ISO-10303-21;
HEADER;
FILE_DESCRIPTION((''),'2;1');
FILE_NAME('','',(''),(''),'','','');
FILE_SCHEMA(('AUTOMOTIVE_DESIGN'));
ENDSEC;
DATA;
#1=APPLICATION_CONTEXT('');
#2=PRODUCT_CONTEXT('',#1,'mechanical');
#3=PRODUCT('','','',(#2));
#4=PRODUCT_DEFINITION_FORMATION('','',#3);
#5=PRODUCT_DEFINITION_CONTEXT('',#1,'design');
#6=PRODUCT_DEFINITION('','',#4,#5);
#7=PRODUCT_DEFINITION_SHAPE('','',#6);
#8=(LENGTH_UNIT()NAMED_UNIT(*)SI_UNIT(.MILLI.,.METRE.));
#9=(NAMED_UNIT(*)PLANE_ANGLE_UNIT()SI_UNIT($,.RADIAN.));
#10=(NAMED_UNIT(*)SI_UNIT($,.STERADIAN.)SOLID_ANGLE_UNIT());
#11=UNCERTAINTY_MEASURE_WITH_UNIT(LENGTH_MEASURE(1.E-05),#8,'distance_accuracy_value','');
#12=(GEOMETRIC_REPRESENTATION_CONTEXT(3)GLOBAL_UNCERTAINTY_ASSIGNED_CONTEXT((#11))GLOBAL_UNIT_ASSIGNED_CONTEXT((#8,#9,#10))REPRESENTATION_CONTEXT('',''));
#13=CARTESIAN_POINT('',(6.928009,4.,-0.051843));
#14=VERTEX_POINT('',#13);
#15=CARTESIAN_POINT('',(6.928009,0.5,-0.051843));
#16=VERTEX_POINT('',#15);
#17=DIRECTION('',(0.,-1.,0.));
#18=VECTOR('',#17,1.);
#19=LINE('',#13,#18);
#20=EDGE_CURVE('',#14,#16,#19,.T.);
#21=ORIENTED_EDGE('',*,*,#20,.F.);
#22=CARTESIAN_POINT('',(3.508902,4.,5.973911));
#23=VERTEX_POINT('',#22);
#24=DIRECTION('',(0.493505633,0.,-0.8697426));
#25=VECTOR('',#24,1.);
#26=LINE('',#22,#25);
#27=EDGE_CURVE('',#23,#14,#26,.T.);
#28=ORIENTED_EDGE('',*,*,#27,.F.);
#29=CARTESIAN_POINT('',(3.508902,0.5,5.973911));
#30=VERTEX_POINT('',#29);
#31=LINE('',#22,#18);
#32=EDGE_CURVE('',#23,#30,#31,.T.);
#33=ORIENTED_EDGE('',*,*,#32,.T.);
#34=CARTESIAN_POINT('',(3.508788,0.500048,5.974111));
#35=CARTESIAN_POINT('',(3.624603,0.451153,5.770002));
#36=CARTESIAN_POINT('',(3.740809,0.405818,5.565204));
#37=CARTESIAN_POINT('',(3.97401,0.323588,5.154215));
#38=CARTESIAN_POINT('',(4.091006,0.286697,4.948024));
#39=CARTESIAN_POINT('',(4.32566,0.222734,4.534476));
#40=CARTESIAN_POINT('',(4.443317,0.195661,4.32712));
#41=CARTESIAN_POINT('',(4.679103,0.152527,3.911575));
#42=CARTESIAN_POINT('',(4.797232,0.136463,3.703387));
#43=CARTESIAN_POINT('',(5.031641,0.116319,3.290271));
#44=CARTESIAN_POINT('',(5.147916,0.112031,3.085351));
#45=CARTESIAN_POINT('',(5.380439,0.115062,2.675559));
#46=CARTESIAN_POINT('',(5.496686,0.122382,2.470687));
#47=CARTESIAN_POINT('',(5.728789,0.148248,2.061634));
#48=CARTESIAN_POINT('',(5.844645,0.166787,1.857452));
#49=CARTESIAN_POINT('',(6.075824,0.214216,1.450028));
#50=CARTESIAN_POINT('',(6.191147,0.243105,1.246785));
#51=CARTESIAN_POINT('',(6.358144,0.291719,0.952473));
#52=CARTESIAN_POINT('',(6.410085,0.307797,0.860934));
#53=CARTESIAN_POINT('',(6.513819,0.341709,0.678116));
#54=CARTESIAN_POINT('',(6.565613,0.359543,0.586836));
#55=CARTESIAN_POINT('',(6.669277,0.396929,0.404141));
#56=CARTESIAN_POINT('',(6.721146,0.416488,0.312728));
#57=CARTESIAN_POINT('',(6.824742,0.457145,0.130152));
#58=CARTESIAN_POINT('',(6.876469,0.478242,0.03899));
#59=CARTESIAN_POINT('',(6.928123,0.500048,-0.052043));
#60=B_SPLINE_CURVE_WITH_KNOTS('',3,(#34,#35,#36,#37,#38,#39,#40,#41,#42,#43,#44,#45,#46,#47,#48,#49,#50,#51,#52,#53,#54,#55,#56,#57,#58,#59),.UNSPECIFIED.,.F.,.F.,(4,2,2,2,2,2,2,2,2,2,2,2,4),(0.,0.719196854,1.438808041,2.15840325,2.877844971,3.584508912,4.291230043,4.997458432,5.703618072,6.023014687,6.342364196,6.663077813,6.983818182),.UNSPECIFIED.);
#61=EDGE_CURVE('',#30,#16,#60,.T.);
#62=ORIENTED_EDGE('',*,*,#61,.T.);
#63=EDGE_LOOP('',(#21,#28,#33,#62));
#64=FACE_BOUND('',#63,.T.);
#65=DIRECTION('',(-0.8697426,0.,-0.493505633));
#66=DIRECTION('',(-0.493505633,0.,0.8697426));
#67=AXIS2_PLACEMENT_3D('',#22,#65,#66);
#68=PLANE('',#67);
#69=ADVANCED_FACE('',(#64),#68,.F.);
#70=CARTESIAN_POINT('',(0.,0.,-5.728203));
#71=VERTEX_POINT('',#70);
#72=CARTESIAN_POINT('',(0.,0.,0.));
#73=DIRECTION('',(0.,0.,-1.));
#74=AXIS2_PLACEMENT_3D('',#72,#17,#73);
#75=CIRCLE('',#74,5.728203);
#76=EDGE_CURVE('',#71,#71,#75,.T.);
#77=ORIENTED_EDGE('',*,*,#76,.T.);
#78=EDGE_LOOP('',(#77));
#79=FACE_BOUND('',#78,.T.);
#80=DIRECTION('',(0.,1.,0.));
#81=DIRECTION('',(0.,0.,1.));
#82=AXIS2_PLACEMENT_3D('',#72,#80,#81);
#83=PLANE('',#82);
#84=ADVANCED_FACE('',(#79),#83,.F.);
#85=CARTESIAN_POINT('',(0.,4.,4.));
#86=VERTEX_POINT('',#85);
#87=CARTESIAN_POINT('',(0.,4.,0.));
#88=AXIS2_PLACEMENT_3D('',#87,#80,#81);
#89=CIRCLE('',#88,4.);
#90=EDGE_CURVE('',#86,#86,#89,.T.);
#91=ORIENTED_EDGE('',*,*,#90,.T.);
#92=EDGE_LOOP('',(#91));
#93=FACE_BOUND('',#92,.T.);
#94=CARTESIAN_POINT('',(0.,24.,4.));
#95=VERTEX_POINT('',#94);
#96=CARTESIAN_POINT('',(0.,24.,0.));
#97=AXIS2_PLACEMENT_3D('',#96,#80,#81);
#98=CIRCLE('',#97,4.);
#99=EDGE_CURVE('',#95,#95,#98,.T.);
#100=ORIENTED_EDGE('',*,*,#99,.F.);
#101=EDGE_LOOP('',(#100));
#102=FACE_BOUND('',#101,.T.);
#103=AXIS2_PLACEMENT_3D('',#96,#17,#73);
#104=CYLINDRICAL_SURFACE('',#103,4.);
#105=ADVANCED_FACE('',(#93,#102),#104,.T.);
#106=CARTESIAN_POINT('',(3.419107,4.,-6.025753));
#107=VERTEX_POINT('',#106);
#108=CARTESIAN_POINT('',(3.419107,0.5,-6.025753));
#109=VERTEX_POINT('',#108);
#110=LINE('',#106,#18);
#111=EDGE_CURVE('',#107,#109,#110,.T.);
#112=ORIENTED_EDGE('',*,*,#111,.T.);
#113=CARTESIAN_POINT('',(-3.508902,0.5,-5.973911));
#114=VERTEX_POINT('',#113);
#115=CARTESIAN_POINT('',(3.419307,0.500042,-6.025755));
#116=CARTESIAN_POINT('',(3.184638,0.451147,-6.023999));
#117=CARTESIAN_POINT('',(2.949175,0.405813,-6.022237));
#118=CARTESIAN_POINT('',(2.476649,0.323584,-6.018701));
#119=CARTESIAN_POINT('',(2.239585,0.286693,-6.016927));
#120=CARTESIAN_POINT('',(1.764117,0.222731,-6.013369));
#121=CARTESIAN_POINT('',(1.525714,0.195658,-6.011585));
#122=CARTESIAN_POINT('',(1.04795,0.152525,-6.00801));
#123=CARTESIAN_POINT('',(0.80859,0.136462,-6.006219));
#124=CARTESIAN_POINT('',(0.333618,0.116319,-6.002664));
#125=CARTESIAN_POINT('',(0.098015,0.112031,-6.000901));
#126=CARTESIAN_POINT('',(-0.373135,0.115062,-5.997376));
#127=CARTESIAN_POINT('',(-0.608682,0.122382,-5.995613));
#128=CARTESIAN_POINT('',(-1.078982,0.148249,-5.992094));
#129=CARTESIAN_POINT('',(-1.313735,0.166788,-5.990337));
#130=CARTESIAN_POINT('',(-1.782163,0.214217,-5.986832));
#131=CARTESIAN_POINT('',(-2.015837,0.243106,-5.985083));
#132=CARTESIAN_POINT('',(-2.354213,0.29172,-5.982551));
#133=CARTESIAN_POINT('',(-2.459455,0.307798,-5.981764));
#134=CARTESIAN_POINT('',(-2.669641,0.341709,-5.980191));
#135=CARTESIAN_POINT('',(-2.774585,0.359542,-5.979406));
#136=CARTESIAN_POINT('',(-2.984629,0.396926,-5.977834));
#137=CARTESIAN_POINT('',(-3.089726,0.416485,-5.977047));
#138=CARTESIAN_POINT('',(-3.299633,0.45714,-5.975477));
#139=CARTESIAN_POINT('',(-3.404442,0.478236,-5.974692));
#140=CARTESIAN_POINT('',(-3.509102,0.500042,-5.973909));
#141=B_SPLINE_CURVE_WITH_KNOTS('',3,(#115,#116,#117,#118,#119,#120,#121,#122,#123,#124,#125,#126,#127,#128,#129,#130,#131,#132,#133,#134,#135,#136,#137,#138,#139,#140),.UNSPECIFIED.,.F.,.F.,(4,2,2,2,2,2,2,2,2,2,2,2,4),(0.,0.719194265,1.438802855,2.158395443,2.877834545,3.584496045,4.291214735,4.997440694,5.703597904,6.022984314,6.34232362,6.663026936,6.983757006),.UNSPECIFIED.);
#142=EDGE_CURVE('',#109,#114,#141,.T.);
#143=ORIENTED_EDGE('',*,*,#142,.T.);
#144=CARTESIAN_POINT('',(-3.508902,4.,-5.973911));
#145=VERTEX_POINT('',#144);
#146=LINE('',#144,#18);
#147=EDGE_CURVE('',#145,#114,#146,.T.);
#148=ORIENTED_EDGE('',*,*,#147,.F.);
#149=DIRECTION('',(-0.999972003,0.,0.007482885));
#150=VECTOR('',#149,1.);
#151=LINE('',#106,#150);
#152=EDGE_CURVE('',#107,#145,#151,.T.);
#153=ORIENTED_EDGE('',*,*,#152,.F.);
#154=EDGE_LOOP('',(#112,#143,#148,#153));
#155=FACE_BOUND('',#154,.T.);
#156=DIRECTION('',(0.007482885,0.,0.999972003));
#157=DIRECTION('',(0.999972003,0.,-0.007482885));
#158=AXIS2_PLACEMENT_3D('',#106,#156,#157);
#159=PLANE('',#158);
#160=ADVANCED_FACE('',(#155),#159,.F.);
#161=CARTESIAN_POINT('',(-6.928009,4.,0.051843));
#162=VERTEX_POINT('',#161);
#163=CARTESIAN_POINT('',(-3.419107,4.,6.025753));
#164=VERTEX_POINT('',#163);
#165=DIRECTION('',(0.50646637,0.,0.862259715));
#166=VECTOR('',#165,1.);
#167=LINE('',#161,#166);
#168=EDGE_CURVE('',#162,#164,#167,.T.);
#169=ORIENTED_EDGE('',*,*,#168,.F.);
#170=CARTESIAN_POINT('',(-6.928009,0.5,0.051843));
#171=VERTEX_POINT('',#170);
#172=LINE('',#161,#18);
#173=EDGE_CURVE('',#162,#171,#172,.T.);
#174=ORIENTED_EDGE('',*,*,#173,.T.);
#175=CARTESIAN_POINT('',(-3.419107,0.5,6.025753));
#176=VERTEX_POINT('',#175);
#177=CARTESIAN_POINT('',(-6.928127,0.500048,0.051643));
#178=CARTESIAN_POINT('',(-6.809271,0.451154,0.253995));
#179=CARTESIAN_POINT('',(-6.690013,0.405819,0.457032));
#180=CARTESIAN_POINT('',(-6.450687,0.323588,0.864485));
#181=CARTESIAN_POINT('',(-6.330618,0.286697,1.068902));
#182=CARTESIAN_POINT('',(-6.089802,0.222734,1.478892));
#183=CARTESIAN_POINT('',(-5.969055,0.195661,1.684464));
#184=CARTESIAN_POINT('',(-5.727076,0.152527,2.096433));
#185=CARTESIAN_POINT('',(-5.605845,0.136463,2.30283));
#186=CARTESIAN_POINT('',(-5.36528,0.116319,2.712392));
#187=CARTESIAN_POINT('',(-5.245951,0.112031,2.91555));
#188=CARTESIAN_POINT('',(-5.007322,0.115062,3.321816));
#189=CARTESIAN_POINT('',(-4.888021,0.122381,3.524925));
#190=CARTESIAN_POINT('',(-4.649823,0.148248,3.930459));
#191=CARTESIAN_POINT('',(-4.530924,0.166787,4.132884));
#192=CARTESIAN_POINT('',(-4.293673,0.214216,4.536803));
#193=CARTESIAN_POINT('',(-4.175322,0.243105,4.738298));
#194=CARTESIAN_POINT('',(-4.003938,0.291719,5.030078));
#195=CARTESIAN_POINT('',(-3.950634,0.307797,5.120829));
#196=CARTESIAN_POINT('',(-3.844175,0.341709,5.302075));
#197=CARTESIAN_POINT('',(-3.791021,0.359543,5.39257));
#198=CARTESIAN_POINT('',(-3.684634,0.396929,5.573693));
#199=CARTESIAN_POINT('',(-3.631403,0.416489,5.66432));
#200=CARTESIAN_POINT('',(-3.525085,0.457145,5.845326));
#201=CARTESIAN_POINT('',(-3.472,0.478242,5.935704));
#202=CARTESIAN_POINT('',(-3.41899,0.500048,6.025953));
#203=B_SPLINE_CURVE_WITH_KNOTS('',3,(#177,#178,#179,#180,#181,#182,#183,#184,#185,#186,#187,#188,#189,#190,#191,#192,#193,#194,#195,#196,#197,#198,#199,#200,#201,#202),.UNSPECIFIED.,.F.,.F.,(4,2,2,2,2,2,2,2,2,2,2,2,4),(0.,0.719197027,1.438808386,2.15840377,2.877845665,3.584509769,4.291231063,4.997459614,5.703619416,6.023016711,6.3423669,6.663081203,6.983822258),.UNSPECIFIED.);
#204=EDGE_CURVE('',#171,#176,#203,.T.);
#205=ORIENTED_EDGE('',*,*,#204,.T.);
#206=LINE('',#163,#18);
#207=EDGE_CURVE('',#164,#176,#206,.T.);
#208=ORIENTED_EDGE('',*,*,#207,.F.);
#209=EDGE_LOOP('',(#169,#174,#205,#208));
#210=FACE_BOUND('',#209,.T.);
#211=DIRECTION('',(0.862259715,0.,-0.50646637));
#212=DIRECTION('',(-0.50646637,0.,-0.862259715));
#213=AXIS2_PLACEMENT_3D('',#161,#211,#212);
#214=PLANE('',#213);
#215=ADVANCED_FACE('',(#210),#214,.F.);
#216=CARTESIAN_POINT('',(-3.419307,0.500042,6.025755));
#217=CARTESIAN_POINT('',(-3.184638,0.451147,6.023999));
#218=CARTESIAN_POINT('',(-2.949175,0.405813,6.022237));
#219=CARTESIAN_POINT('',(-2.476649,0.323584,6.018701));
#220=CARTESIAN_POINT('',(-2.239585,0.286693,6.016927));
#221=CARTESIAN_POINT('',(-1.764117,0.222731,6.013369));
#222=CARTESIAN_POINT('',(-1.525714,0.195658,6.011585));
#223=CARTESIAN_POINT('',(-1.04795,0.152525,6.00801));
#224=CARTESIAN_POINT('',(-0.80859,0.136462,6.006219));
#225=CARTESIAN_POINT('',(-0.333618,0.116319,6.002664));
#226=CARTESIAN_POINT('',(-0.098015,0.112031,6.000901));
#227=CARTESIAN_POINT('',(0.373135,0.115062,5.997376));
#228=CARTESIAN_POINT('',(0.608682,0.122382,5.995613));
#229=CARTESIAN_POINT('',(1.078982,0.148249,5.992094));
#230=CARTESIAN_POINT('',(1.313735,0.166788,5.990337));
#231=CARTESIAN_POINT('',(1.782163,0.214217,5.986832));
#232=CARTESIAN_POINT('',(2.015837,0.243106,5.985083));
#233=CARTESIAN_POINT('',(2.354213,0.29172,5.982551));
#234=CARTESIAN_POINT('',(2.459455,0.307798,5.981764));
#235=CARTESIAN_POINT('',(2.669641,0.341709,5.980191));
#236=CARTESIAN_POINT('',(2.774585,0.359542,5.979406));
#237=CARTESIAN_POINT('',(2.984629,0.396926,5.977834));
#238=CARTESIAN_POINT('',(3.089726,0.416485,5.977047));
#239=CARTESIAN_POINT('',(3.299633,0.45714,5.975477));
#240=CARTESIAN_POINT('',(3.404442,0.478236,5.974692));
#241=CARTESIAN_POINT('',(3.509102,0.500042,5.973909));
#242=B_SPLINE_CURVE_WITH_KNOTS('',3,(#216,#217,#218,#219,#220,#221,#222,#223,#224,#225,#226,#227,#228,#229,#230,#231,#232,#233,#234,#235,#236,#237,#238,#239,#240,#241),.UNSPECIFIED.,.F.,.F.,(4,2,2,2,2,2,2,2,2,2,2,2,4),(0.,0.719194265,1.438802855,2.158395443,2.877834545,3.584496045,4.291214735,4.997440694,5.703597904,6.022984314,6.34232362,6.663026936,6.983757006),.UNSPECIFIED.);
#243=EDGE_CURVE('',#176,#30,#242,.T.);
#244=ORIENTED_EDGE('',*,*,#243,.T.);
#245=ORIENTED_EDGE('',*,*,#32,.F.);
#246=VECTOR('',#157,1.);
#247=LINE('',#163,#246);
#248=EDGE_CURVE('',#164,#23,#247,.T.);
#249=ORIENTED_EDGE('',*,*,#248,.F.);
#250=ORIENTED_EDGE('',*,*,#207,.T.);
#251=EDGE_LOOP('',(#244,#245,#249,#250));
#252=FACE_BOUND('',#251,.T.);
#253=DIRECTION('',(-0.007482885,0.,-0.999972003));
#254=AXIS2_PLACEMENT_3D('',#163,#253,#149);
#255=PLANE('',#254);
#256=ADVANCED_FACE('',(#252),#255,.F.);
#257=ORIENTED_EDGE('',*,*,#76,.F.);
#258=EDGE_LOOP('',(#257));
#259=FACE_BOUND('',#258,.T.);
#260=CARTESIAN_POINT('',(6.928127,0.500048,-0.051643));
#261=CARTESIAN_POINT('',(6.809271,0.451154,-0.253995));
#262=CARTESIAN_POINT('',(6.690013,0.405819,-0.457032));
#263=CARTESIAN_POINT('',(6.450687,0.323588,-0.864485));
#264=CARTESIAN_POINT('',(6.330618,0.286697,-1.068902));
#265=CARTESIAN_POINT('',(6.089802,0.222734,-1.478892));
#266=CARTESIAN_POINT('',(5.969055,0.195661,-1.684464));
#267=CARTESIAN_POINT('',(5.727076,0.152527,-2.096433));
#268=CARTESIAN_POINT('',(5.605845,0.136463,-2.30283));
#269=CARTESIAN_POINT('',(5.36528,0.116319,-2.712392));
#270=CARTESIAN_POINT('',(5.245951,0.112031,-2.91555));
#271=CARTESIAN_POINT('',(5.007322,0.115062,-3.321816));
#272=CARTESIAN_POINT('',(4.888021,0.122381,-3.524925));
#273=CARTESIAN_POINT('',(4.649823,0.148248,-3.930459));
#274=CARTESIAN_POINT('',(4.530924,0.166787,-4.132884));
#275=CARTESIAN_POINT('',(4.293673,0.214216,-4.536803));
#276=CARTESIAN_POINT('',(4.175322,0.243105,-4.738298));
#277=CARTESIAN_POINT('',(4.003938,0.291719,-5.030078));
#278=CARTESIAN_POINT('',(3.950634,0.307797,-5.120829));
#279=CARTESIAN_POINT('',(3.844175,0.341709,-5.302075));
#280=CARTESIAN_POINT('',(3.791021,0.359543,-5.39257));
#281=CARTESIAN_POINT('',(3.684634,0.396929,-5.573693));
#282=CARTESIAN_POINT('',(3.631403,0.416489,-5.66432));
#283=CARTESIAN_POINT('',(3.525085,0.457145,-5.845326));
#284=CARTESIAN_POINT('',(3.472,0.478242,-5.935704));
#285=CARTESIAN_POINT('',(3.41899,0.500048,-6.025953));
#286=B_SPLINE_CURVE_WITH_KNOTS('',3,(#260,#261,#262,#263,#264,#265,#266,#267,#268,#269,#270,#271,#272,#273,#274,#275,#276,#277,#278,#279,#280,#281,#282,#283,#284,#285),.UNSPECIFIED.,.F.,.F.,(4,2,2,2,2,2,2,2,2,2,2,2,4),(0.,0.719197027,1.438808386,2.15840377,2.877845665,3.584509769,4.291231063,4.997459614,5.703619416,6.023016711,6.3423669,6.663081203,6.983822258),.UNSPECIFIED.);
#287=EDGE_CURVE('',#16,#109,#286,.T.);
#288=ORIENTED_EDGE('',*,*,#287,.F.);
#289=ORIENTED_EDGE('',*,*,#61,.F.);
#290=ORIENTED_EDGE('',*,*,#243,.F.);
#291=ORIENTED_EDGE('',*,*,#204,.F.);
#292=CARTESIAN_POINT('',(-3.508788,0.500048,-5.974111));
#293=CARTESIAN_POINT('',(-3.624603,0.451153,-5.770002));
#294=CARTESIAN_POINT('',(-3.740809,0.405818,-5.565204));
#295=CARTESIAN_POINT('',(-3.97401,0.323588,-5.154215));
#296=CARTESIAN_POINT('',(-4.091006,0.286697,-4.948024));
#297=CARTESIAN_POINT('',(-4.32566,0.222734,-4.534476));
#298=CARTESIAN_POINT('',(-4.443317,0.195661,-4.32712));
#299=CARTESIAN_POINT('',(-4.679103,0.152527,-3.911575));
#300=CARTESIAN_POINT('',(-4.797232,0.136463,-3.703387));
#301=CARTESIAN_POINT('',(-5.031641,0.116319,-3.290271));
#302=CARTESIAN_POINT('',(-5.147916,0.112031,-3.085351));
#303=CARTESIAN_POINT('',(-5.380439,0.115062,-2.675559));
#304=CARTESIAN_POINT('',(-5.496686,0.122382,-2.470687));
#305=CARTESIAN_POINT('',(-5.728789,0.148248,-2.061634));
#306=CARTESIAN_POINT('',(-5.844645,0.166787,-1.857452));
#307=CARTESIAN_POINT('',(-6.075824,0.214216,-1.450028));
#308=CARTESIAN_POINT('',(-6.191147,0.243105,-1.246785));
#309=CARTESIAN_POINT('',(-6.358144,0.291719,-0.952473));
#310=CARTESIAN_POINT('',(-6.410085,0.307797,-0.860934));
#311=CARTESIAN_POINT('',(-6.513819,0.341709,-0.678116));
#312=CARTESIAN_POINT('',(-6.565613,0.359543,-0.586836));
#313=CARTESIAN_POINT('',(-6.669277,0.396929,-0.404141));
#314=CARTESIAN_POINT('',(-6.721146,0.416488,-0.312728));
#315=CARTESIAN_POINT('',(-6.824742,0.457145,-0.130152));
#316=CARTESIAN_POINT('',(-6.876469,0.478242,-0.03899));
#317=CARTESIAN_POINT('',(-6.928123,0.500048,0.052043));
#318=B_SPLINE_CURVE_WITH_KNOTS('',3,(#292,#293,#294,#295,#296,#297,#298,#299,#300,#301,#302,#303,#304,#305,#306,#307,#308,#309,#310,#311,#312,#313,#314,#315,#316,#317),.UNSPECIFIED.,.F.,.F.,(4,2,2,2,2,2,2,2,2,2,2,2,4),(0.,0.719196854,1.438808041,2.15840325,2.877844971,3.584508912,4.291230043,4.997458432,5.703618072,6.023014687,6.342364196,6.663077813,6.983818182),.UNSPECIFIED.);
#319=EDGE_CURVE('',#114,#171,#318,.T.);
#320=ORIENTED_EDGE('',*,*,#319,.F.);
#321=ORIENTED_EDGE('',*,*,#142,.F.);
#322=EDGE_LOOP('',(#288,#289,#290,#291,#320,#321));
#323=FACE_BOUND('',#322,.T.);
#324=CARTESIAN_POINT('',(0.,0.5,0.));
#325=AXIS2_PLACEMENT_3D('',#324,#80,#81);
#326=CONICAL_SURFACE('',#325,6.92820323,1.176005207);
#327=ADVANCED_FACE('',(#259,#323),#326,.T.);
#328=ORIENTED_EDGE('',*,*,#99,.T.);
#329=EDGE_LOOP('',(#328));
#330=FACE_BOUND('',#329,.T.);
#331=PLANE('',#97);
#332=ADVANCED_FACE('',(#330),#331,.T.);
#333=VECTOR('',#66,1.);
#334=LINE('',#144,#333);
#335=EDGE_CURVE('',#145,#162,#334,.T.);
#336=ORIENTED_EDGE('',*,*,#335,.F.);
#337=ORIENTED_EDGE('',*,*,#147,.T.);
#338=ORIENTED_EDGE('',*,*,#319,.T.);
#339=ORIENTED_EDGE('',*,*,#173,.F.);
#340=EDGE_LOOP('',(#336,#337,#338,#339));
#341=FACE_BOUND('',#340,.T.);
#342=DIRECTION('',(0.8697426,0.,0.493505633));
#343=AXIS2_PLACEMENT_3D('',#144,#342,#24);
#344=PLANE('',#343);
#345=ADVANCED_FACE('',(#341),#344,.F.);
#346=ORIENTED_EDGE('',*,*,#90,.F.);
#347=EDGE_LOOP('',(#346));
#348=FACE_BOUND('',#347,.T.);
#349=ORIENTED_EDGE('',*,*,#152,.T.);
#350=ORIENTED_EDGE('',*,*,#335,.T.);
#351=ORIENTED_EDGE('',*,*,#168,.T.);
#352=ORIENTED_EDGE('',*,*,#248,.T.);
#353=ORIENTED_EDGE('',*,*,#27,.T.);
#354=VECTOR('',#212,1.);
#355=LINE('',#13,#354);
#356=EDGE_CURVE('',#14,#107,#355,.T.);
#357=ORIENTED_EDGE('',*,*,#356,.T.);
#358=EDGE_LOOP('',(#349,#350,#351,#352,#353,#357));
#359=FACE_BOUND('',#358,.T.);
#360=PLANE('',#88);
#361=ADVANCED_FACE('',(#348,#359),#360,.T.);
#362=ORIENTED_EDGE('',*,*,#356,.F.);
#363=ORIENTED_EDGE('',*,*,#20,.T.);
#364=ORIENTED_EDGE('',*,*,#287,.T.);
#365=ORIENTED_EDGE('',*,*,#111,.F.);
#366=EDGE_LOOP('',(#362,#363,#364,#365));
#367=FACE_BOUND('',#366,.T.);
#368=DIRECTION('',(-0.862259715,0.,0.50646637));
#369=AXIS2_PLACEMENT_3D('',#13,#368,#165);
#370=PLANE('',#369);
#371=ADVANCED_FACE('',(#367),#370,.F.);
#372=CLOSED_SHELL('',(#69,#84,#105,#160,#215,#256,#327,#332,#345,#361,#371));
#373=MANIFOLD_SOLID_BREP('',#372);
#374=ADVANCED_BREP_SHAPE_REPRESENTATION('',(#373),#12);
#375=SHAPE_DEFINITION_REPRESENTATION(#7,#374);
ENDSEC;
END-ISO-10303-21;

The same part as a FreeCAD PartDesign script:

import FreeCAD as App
import Part
import Sketcher

V = App.Vector


def add_polygon(sketch, points):
    """Adds a closed chain of lines whose ends are joined by coincident constraints."""
    first, n = sketch.GeometryCount, len(points)
    for a, b in zip(points, points[1:] + points[:1]):
        sketch.addGeometry(Part.LineSegment(App.Vector(*a, 0), App.Vector(*b, 0)), False)
    for i in range(n):
        sketch.addConstraint(Sketcher.Constraint("Coincident", first + i, 2, first + (i + 1) % n, 1))

doc = App.newDocument("Part")
body = doc.addObject("PartDesign::Body", "Body")

# Sketch on XZ plane
sketch1 = doc.addObject("Sketcher::SketchObject", "Sketch")
body.addObject(sketch1)
sketch1.AttachmentSupport = (doc.XZ_Plane, [""])
sketch1.MapMode = "FlatFace"
add_polygon(sketch1, [(3, -6), (-4, -6), (-7, 0), (-3, 6), (4, 6), (7, 0)])  # lines 0-5
sketch1.addConstraint([
    Sketcher.Constraint("Symmetric", 0, 2, 3, 2, -1, 1),
    Sketcher.Constraint("Symmetric", 1, 2, 4, 2, -1, 1),
    Sketcher.Constraint("Symmetric", 2, 2, 5, 2, -1, 1),
    Sketcher.Constraint("Equal", 0, 1),
    Sketcher.Constraint("Equal", 1, 2),
    Sketcher.Constraint("DistanceX", 0, 2, -1, 1, 3.508902),
    Sketcher.Constraint("DistanceX", 1, 2, 2, 2, 3.508902),
    Sketcher.Constraint("DistanceY", 0, 2, -1, 1, 5.973911),
    Sketcher.Constraint("DistanceX", 1, 2, -1, 1, 6.928009),
])
pad1 = doc.addObject("PartDesign::Pad", "Pad")
body.addObject(pad1)
pad1.Profile = sketch1
pad1.Length = 4
pad1.Reversed = True

# Sketch on XZ plane
sketch2 = doc.addObject("Sketcher::SketchObject", "Sketch001")
body.addObject(sketch2)
sketch2.AttachmentSupport = (doc.XZ_Plane, [""])
sketch2.MapMode = "FlatFace"
sketch2.AttachmentOffset = App.Placement(V(0, 0, -4), App.Rotation())
sketch2.addGeometry(Part.Circle(V(0, 0, 0), V(0, 0, 1), 4), False)
sketch2.addConstraint([
    Sketcher.Constraint("Coincident", 0, 3, -1, 1),
    Sketcher.Constraint("Diameter", 0, 8.0),
])
pad2 = doc.addObject("PartDesign::Pad", "Pad001")
body.addObject(pad2)
pad2.Profile = sketch2
pad2.Length = 20
pad2.Reversed = True

# Sketch on an angled plane
sketch3 = doc.addObject("Sketcher::SketchObject", "Sketch002")
body.addObject(sketch3)
sketch3.Placement = App.Placement(V(0, 0, 0), App.Rotation(V(0.493505633, 0, -0.8697426), V(0, 1, 0), V(0.8697426, 0, 0.493505633), "ZXY"))
add_polygon(sketch3, [(6.9, 0.5), (5.7, 0), (6.9, 0)])  # lines 0-2
sketch3.addConstraint([
    Sketcher.Constraint("Horizontal", 1),
    Sketcher.Constraint("Vertical", 2),
    Sketcher.Constraint("PointOnObject", 0, 2, -1),
    Sketcher.Constraint("DistanceX", 1, 1, 1, 2, 1.2),
    Sketcher.Constraint("DistanceY", 2, 1, 2, 2, 0.5),
    Sketcher.Constraint("DistanceX", -1, 1, 0, 2, 5.728203),
])
groove = doc.addObject("PartDesign::Groove", "Groove")
body.addObject(groove)
groove.Profile = sketch3
groove.ReferenceAxis = (sketch3, ["V_Axis"])
groove.Angle = 360

doc.recompute()
